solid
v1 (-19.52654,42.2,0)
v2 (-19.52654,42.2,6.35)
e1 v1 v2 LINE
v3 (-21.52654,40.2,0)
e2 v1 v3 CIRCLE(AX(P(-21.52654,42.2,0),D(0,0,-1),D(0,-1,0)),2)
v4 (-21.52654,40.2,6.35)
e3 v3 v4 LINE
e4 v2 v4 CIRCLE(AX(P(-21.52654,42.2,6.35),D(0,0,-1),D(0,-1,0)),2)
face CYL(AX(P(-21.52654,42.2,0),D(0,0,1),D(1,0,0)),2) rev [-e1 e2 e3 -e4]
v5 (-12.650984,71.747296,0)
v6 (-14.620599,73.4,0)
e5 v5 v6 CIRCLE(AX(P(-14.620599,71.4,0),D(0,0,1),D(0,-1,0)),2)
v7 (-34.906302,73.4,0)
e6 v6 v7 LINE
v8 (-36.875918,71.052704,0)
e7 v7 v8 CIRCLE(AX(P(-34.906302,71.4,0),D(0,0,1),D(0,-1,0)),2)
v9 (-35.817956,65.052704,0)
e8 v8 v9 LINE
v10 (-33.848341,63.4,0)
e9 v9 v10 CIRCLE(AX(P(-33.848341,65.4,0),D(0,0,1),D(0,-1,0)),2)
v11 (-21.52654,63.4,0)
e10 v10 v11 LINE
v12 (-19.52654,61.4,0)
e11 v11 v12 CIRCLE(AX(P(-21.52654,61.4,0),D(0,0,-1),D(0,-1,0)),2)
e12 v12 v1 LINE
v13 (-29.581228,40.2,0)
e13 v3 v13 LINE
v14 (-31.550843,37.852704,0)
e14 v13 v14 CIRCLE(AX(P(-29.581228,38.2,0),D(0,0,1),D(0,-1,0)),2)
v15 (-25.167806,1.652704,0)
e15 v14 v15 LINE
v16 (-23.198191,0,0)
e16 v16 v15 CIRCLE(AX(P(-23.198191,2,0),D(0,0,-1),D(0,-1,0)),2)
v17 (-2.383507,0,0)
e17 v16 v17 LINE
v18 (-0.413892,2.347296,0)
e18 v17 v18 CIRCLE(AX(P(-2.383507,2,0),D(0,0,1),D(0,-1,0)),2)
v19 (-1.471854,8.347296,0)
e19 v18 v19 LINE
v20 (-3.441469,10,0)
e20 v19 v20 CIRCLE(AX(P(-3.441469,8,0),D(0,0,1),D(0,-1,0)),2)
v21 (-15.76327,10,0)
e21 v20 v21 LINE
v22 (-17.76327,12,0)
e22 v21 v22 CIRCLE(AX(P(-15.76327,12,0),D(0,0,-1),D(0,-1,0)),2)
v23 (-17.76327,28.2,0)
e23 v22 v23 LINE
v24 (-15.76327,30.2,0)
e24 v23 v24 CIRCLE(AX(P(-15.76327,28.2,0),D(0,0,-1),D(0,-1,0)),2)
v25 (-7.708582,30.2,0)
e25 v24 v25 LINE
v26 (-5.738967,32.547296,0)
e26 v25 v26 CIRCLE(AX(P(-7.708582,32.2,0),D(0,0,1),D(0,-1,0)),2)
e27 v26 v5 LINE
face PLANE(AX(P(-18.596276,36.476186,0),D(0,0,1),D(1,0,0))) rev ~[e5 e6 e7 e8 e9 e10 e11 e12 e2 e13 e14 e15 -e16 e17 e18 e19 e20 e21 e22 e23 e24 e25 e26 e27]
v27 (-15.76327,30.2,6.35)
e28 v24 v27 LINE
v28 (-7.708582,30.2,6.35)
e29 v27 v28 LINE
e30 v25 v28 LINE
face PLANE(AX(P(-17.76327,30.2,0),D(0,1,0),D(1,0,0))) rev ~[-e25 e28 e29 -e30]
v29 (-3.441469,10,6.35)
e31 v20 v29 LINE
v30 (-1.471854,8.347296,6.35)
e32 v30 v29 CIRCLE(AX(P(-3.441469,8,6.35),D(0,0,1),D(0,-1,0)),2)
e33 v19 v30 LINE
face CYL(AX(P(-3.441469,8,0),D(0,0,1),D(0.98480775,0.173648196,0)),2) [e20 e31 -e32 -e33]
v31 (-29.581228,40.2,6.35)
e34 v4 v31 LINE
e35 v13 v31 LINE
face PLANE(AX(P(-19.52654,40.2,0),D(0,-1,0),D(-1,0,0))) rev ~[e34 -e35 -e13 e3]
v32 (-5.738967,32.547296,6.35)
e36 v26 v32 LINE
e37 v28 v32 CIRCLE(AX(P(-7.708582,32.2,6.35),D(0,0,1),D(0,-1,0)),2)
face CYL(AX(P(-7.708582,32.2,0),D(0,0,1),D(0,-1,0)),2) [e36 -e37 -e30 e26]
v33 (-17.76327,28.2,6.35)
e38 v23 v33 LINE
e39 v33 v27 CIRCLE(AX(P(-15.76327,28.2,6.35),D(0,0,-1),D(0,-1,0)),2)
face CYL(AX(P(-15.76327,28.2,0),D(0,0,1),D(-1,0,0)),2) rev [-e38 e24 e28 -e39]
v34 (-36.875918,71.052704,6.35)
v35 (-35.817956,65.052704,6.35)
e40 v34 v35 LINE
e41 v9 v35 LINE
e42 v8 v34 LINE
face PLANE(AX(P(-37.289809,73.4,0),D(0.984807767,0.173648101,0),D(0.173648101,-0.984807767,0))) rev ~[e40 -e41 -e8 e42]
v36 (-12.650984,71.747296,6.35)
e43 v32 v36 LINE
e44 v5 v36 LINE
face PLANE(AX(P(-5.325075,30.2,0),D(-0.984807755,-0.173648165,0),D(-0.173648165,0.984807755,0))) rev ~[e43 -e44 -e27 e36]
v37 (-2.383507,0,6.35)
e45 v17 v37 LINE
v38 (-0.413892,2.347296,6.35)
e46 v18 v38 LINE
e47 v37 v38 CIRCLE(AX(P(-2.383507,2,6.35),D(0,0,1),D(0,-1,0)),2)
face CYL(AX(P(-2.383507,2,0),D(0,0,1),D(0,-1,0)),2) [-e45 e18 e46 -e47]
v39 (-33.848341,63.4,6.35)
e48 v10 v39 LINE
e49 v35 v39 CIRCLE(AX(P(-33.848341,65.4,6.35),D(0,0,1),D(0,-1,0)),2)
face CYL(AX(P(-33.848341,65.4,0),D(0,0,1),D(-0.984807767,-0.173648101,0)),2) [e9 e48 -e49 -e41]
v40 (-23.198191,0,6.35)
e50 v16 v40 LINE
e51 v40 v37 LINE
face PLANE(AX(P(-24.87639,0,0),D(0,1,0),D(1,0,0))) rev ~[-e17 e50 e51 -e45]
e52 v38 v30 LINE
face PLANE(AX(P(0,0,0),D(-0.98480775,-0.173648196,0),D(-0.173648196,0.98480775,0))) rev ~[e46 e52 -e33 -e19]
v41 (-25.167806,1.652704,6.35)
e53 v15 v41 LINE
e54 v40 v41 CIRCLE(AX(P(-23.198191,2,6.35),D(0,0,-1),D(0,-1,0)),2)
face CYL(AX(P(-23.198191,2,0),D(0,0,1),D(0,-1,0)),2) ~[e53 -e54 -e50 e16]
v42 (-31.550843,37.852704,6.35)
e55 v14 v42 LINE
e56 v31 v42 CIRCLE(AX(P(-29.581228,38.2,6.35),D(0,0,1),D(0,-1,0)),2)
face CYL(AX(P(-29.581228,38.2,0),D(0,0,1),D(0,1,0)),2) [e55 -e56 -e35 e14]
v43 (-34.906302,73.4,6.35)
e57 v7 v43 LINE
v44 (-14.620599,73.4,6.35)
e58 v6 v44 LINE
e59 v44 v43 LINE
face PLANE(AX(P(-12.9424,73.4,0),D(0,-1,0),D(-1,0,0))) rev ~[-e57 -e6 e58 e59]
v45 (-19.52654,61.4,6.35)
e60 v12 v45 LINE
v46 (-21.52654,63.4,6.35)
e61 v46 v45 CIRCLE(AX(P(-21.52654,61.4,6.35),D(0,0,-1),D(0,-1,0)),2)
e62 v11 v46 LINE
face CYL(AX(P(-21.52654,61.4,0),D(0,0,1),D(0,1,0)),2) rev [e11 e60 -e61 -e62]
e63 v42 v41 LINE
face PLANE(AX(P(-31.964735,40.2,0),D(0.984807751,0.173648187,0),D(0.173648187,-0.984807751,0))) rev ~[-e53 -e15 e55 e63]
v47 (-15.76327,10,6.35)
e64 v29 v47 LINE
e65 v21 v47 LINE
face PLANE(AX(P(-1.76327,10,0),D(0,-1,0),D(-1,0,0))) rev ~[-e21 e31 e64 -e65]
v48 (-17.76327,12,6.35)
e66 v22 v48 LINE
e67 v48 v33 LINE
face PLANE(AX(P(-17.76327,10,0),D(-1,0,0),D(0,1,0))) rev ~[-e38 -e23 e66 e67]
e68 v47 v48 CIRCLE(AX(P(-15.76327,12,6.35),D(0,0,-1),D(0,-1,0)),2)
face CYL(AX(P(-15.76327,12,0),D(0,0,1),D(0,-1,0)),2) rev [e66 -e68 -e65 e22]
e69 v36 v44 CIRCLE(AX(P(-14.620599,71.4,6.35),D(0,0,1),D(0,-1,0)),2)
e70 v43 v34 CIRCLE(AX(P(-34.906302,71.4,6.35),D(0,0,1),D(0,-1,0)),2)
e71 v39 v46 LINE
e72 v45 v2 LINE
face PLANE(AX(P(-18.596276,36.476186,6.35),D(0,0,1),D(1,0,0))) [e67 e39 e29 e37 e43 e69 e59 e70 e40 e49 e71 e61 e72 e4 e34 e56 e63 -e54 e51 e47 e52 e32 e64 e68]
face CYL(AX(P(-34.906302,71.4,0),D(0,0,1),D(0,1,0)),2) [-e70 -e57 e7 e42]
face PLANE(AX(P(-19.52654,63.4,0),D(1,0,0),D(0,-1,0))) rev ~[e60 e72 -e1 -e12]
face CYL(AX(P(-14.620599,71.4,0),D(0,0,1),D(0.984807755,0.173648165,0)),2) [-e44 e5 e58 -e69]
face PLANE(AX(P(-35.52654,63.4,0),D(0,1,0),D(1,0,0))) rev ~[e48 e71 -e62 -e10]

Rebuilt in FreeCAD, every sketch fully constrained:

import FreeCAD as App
import Part
import Sketcher

V = App.Vector
Q = App.Units.Quantity


def edges_at(feature, points):
    """Names of the edges that pass closest to the given points."""
    edges = feature.Shape.Edges
    near = lambda p: min(range(len(edges)), key=lambda i: edges[i].distToShape(Part.Vertex(*p))[0])
    return sorted({f"Edge{near(p) + 1}" for p in points})


def add_polygon(sketch, points):
    """Adds a closed chain of lines whose ends are joined by coincident constraints."""
    first, n = sketch.GeometryCount, len(points)
    for a, b in zip(points, points[1:] + points[:1]):
        sketch.addGeometry(Part.LineSegment(App.Vector(*a, 0), App.Vector(*b, 0)), False)
    for i in range(n):
        sketch.addConstraint(Sketcher.Constraint("Coincident", first + i, 2, first + (i + 1) % n, 1))

doc = App.newDocument("Part")
body = doc.addObject("PartDesign::Body", "Body")

# Sketch on XY plane
sketch1 = doc.addObject("Sketcher::SketchObject", "Sketch")
body.addObject(sketch1)
sketch1.AttachmentSupport = (doc.XY_Plane, [""])
sketch1.MapMode = "FlatFace"
add_polygon(sketch1, [(-24.87639, 0), (0, 0), (-1.76327, 10), (-17.76327, 10), (-17.76327, 30.2), (-5.325075, 30.2), (-12.9424, 73.4), (-37.289809, 73.4), (-35.52654, 63.4), (-19.52654, 63.4), (-19.52654, 40.2), (-31.964735, 40.2)])  # lines 0-11
sketch1.addConstraint([
    Sketcher.Constraint("Horizontal", 0),
    Sketcher.Constraint("Horizontal", 2),
    Sketcher.Constraint("Vertical", 3),
    Sketcher.Constraint("Horizontal", 4),
    Sketcher.Constraint("Horizontal", 6),
    Sketcher.Constraint("Horizontal", 8),
    Sketcher.Constraint("Vertical", 9),
    Sketcher.Constraint("Horizontal", 10),
    Sketcher.Constraint("Coincident", 0, 2, -1, 1),
    Sketcher.Constraint("Parallel", 1, 5),
    Sketcher.Constraint("Parallel", 5, 7),
    Sketcher.Constraint("Parallel", 7, 11),
    Sketcher.Constraint("Equal", 2, 8),
    Sketcher.Constraint("Equal", 4, 10),
    Sketcher.Constraint("Equal", 1, 7),
    Sketcher.Constraint("DistanceX", 2, 2, 2, 1, Q("16 mm")),
    Sketcher.Constraint("Angle", 1, Q("100.000001 deg")),
    Sketcher.Constraint("DistanceY", 3, 1, 3, 2, Q("20.2 mm")),
    Sketcher.Constraint("DistanceY", 9, 2, 9, 1, Q("23.2 mm")),
    Sketcher.Constraint("DistanceY", -1, 1, 1, 2, Q("10 mm")),
    Sketcher.Constraint("DistanceY", 3, 2, 9, 2, Q("10 mm")),
    Sketcher.Constraint("DistanceX", 0, 1, 0, 2, Q("24.87639 mm")),
    Sketcher.Constraint("DistanceX", 5, 2, -1, 1, Q("12.9424 mm")),
])
pad1 = doc.addObject("PartDesign::Pad", "Pad")
body.addObject(pad1)
pad1.Profile = sketch1
pad1.Length = 6.35
doc.recompute()

fillet = doc.addObject("PartDesign::Fillet", "Fillet")
body.addObject(fillet)
fillet.Base = (pad1, edges_at(pad1, [
    (-37.29, 73.4, 3.175),
    (-35.527, 63.4, 3.175),
    (-19.527, 63.4, 3.175),
    (-31.965, 40.2, 3.175),
    (-19.527, 40.2, 3.175),
    (-12.942, 73.4, 3.175),
    (-5.325, 30.2, 3.175),
    (-17.763, 30.2, 3.175),
    (-17.763, 10, 3.175),
    (-1.763, 10, 3.175),
    (0, 0, 3.175),
    (-24.876, 0, 3.175),
]))
fillet.Radius = 2

doc.recompute()
